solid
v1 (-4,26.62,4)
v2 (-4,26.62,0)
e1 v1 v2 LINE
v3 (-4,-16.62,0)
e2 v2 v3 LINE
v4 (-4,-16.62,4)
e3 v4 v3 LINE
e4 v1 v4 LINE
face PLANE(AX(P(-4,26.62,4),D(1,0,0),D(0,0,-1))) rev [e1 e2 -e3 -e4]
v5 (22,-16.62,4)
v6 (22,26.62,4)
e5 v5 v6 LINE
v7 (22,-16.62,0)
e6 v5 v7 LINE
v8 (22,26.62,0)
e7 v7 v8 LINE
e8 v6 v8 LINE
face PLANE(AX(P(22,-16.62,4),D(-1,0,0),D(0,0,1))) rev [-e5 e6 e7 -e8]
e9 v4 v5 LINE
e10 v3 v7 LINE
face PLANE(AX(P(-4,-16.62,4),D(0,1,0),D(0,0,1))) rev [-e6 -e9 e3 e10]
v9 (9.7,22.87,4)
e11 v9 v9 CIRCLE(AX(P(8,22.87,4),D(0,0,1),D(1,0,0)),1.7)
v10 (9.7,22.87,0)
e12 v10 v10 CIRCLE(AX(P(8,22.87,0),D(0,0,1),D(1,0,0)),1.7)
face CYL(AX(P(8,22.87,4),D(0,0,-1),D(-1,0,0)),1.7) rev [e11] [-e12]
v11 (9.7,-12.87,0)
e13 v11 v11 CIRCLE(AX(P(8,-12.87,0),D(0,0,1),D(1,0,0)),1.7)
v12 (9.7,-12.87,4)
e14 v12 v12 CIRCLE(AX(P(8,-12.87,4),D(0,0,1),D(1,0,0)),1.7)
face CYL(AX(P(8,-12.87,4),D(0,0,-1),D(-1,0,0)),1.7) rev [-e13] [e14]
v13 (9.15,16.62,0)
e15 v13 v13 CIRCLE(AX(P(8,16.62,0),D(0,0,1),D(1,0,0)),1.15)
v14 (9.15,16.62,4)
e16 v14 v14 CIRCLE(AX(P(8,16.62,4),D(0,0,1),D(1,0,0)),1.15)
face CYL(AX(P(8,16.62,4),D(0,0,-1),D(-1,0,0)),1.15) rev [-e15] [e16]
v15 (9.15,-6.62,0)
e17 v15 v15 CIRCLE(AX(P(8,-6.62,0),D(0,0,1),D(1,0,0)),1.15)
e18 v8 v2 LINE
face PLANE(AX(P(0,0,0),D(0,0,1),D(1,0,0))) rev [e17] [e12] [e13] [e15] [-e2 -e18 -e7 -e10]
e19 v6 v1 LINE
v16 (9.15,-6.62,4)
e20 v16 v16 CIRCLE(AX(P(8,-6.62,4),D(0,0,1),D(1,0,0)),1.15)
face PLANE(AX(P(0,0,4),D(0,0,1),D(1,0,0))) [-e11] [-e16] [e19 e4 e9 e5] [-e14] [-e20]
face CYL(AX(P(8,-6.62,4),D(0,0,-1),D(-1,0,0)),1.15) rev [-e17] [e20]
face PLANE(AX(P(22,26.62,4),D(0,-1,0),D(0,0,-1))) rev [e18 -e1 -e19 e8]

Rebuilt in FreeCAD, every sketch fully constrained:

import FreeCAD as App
import Part
import Sketcher

V = App.Vector


def add_polygon(sketch, points):
    """Adds a closed chain of lines whose ends are joined by coincident constraints."""
    first, n = sketch.GeometryCount, len(points)
    for a, b in zip(points, points[1:] + points[:1]):
        sketch.addGeometry(Part.LineSegment(App.Vector(*a, 0), App.Vector(*b, 0)), False)
    for i in range(n):
        sketch.addConstraint(Sketcher.Constraint("Coincident", first + i, 2, first + (i + 1) % n, 1))

doc = App.newDocument("Part")
body = doc.addObject("PartDesign::Body", "Body")

# Sketch on XY plane
sketch1 = body.newObject("Sketcher::SketchObject", "Sketch")
sketch1.AttachmentSupport = (doc.getObject("XY_Plane"), [""])
sketch1.MapMode = "FlatFace"
add_polygon(sketch1, [(-4, 26.6), (-4, -16.6), (22, -16.6), (22, 26.6)])  # lines 0-3
sketch1.addGeometry(Part.Circle(V(8, -12.9, 0), V(0, 0, 1), 1.7), False)  # 4
sketch1.addGeometry(Part.Circle(V(8, -6.6, 0), V(0, 0, 1), 1.1), False)  # 5
sketch1.addGeometry(Part.Circle(V(8, 16.6, 0), V(0, 0, 1), 1.1), False)  # 6
sketch1.addGeometry(Part.Circle(V(8, 22.9, 0), V(0, 0, 1), 1.7), False)  # 7
sketch1.addConstraint(Sketcher.Constraint("Vertical", 0))
sketch1.addConstraint(Sketcher.Constraint("Horizontal", 1))
sketch1.addConstraint(Sketcher.Constraint("Vertical", 2))
sketch1.addConstraint(Sketcher.Constraint("Horizontal", 3))
sketch1.addConstraint(Sketcher.Constraint("Equal", 5, 6))
sketch1.addConstraint(Sketcher.Constraint("Equal", 4, 7))
sketch1.addConstraint(Sketcher.Constraint("Vertical", 4, 3, 5, 3))
sketch1.addConstraint(Sketcher.Constraint("Vertical", 5, 3, 6, 3))
sketch1.addConstraint(Sketcher.Constraint("Vertical", 6, 3, 7, 3))
sketch1.addConstraint(Sketcher.Constraint("Diameter", 4, 3.4))
sketch1.addConstraint(Sketcher.Constraint("Diameter", 5, 2.3))
sketch1.addConstraint(Sketcher.Constraint("DistanceX", 1, 1, 1, 2, 26.0))
sketch1.addConstraint(Sketcher.Constraint("DistanceX", -1, 1, 4, 3, 8.0))
sketch1.addConstraint(Sketcher.Constraint("DistanceX", 0, 2, -1, 1, 4.0))
sketch1.addConstraint(Sketcher.Constraint("DistanceY", 0, 2, 5, 3, 10.0))
sketch1.addConstraint(Sketcher.Constraint("DistanceY", 6, 3, 2, 2, 10.0))
sketch1.addConstraint(Sketcher.Constraint("DistanceY", 0, 2, 0, 1, 43.24))
sketch1.addConstraint(Sketcher.Constraint("DistanceY", 4, 3, -1, 1, 12.87))
sketch1.addConstraint(Sketcher.Constraint("DistanceY", 5, 3, -1, 1, 6.62))
sketch1.addConstraint(Sketcher.Constraint("DistanceY", -1, 1, 7, 3, 22.87))
pad1 = body.newObject("PartDesign::Pad", "Pad")
pad1.Profile = sketch1
pad1.Length = 4

doc.recompute()
